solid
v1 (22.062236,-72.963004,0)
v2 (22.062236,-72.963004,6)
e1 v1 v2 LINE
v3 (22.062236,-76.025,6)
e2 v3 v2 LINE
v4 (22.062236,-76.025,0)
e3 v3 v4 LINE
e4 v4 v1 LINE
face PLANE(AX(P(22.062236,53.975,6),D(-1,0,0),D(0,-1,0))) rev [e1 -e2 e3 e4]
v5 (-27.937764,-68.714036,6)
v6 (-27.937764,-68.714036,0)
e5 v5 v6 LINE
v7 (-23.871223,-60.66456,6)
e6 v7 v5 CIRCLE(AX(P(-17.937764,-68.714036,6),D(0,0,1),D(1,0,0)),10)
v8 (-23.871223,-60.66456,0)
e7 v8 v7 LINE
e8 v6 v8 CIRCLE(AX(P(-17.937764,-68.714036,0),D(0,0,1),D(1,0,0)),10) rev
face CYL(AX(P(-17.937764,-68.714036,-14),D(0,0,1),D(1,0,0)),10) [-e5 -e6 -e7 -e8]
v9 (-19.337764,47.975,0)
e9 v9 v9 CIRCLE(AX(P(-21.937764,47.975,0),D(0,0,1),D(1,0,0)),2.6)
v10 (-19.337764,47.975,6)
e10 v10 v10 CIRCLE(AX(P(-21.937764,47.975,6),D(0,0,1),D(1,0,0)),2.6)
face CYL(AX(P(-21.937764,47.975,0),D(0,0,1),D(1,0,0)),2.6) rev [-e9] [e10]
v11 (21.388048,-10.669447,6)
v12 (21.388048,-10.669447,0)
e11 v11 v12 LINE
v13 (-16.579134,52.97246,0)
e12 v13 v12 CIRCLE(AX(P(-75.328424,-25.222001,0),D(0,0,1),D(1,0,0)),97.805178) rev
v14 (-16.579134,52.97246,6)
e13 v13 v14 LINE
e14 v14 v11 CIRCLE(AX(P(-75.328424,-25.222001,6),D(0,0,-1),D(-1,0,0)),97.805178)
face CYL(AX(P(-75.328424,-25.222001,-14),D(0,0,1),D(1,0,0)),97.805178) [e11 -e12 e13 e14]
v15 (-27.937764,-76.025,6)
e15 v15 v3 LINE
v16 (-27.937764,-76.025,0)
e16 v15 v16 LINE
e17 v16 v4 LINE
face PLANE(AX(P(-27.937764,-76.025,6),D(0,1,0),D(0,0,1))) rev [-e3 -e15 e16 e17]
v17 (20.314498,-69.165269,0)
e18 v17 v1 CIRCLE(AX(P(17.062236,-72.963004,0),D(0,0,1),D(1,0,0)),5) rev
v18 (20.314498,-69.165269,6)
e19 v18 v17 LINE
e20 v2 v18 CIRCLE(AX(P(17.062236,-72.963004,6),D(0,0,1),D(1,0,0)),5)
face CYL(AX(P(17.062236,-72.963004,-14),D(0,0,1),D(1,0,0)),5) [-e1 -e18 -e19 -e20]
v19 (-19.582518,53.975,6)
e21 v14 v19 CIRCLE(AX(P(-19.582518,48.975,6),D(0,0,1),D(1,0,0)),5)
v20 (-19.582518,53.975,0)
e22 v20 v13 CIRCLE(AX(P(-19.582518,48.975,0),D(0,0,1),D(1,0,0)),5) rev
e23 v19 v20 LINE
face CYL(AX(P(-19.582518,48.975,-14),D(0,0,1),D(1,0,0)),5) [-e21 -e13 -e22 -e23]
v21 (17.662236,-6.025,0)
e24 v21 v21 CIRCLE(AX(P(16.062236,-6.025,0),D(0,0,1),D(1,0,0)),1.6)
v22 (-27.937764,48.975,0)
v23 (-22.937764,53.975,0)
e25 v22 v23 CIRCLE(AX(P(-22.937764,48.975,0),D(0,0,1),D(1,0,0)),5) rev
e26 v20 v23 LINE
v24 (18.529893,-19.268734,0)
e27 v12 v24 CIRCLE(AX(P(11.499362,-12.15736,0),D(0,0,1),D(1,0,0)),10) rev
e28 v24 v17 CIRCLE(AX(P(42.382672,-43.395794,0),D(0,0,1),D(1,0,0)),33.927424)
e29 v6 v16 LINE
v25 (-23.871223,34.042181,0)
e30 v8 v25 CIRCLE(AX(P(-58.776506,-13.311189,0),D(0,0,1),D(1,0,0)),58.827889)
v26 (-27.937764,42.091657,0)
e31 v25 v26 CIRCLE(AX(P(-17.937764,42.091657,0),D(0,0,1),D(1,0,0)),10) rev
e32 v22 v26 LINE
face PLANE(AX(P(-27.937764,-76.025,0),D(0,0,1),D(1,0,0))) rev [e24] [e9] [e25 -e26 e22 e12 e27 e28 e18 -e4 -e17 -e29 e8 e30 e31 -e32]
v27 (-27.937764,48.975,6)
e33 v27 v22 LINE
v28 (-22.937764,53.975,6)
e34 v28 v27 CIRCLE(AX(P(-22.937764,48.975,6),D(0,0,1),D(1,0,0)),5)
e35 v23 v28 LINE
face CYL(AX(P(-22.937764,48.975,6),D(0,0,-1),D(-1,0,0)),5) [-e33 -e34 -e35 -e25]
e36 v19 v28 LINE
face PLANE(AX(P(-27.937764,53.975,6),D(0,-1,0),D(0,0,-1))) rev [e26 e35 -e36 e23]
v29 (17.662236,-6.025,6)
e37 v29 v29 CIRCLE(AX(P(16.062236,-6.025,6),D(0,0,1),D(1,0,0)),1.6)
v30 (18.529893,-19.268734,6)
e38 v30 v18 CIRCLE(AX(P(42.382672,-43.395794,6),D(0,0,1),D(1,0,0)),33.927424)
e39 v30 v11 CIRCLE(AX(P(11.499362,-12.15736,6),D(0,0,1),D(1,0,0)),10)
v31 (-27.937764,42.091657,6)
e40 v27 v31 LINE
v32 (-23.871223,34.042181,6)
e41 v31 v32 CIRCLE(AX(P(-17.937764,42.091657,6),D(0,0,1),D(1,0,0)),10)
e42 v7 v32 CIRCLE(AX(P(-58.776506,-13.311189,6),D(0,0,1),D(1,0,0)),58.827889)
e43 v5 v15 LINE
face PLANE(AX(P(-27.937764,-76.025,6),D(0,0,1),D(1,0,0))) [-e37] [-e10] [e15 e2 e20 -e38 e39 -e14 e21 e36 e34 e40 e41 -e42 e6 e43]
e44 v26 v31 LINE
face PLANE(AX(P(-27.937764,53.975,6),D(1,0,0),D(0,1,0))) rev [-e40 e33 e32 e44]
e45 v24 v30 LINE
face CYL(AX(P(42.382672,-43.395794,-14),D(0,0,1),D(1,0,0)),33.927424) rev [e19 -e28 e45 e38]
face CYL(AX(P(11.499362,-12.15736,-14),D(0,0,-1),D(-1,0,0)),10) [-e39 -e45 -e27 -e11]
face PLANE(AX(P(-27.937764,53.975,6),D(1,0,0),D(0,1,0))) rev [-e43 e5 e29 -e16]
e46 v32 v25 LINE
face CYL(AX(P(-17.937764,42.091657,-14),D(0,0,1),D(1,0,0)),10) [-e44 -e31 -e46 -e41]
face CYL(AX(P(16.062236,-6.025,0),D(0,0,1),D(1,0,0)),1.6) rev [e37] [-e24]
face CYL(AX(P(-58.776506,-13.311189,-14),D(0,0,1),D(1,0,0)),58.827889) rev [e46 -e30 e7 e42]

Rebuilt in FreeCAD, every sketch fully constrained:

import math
import FreeCAD as App
import Part
import Sketcher
Q = App.Units.Quantity


def edges_at(feature, points):
    """Names of the edges that pass closest to the given points."""
    edges = feature.Shape.Edges
    near = lambda p: min(range(len(edges)), key=lambda i: edges[i].distToShape(Part.Vertex(*p))[0])
    return sorted({f"Edge{near(p) + 1}" for p in points})

doc = App.newDocument("Part")
body = doc.addObject("PartDesign::Body", "Body")

sketch1 = doc.addObject("Sketcher::SketchObject", "Sketch")
body.addObject(sketch1)
sketch1.AttachmentSupport = (doc.XY_Plane, [""])
sketch1.MapMode = "FlatFace"
sketch1.addGeometry([
    Part.LineSegment(App.Vector(-28, 54, 0), App.Vector(-28, -76, 0)),
    Part.LineSegment(App.Vector(-28, -76, 0), App.Vector(22, -76, 0)),
    Part.LineSegment(App.Vector(22, -76, 0), App.Vector(22, 54, 0)),
    Part.LineSegment(App.Vector(22, 54, 0), App.Vector(-28, 54, 0)),
], False)
sketch1.addConstraint([
    Sketcher.Constraint("Coincident", 0, 2, 1, 1),
    Sketcher.Constraint("Coincident", 1, 2, 2, 1),
    Sketcher.Constraint("Coincident", 2, 2, 3, 1),
    Sketcher.Constraint("Coincident", 3, 2, 0, 1),
    Sketcher.Constraint("Vertical", 0),
    Sketcher.Constraint("Horizontal", 1),
    Sketcher.Constraint("Vertical", 2),
    Sketcher.Constraint("Horizontal", 3),
    Sketcher.Constraint("DistanceX", 1, 1, 1, 2, Q("50 mm")),
    Sketcher.Constraint("DistanceY", 0, 2, 0, 1, Q("130 mm")),
    Sketcher.Constraint("DistanceY", 0, 2, -1, 1, Q("76.025 mm")),
    Sketcher.Constraint("DistanceX", 0, 2, -1, 1, Q("27.937764 mm")),
])
pad1 = doc.addObject("PartDesign::Pad", "Pad")
body.addObject(pad1)
pad1.Profile = sketch1
pad1.Length = 6

sketch2 = doc.addObject("Sketcher::SketchObject", "Sketch001")
body.addObject(sketch2)
sketch2.AttachmentSupport = (doc.XY_Plane, [""])
sketch2.MapMode = "FlatFace"
sketch2.AttachmentOffset = App.Placement(App.Vector(0, 0, 6), App.Rotation())
sketch2.addGeometry([
    Part.Circle(App.Vector(-21.9, 48, 0), App.Vector(0, 0, 1), 2.6),
    Part.Circle(App.Vector(16.1, -6, 0), App.Vector(0, 0, 1), 1.6),
    Part.LineSegment(App.Vector(-7.9, 54, 0), App.Vector(22.1, 4, 0)),
    Part.LineSegment(App.Vector(22.1, 4, 0), App.Vector(22.1, 54, 0)),
    Part.LineSegment(App.Vector(22.1, 54, 0), App.Vector(-7.9, 54, 0)),
], False)
sketch2.addConstraint([
    Sketcher.Constraint("Coincident", 2, 2, 3, 1),
    Sketcher.Constraint("Coincident", 3, 2, 4, 1),
    Sketcher.Constraint("Coincident", 4, 2, 2, 1),
    Sketcher.Constraint("Vertical", 3),
    Sketcher.Constraint("Horizontal", 4),
    Sketcher.Constraint("Diameter", 0, Q("5.2 mm")),
    Sketcher.Constraint("Diameter", 1, Q("3.2 mm")),
    Sketcher.Constraint("DistanceX", 4, 2, 4, 1, Q("30 mm")),
    Sketcher.Constraint("DistanceY", 3, 1, 3, 2, Q("50 mm")),
    Sketcher.Constraint("DistanceX", 0, 3, 1, 3, Q("38 mm")),
    Sketcher.Constraint("DistanceY", 1, 3, 0, 3, Q("54 mm")),
    Sketcher.Constraint("DistanceX", 1, 3, 2, 2, Q("6 mm")),
    Sketcher.Constraint("DistanceY", 1, 3, 2, 2, Q("10 mm")),
    Sketcher.Constraint("DistanceY", -1, 1, 0, 3, Q("47.975 mm")),
    Sketcher.Constraint("DistanceX", 0, 3, -1, 1, Q("21.937764 mm")),
])
pocket1 = doc.addObject("PartDesign::Pocket", "Pocket")
body.addObject(pocket1)
pocket1.Profile = sketch2
pocket1.Length = 6

sketch3 = doc.addObject("Sketcher::SketchObject", "Sketch002")
body.addObject(sketch3)
sketch3.AttachmentSupport = (doc.XY_Plane, [""])
sketch3.MapMode = "FlatFace"
sketch3.AttachmentOffset = App.Placement(App.Vector(0, 0, 6), App.Rotation())
sketch3.addGeometry([
    Part.LineSegment(App.Vector(-28, 37, 0), App.Vector(-28, -63, 0)),
    Part.ArcOfCircle(Part.Circle(App.Vector(-59, -13, 0), App.Vector(0, 0, 1), 59), math.radians(-58), math.radians(58)),
    Part.LineSegment(App.Vector(9, 54, 0), App.Vector(-18, 54, 0)),
    Part.ArcOfCircle(Part.Circle(App.Vector(-75, -25, 0), App.Vector(0, 0, 1), 98), math.radians(5), math.radians(54)),
    Part.ArcOfCircle(Part.Circle(App.Vector(42, -43, 0), App.Vector(0, 0, 1), 34), math.radians(127), math.radians(233)),
    Part.LineSegment(App.Vector(22, -71, 0), App.Vector(35, 8, 0)),
    Part.LineSegment(App.Vector(35, 8, 0), App.Vector(9, 54, 0)),
], False)
sketch3.addConstraint([
    Sketcher.Constraint("Coincident", 0, 1, 1, 2),
    Sketcher.Constraint("Coincident", 1, 1, 0, 2),
    Sketcher.Constraint("Coincident", 2, 2, 3, 2),
    Sketcher.Constraint("Coincident", 3, 1, 4, 1),
    Sketcher.Constraint("Coincident", 4, 2, 5, 1),
    Sketcher.Constraint("Coincident", 5, 2, 6, 1),
    Sketcher.Constraint("Coincident", 6, 2, 2, 1),
    Sketcher.Constraint("Vertical", 0),
    Sketcher.Constraint("Horizontal", 2),
    Sketcher.Constraint("Vertical", 3, 1, 4, 2),
    Sketcher.Constraint("DistanceX", 0, 1, 2, 2, Q("10 mm")),
    Sketcher.Constraint("DistanceX", 1, 1, 3, 1, Q("50 mm")),
    Sketcher.Constraint("Radius", 1, Q("58.827889 mm")),
    Sketcher.Constraint("Radius", 3, Q("97.805178 mm")),
    Sketcher.Constraint("DistanceY", 3, 3, -1, 1, Q("25.222001 mm")),
    Sketcher.Constraint("DistanceY", -1, 1, 2, 2, Q("53.975 mm")),
    Sketcher.Constraint("Radius", 4, Q("33.927424 mm")),
    Sketcher.Constraint("DistanceX", 2, 2, 2, 1, Q("27.060348 mm")),
    Sketcher.Constraint("DistanceY", 0, 2, 0, 1, Q("100.193662 mm")),
    Sketcher.Constraint("DistanceY", 1, 3, -1, 1, Q("13.311189 mm")),
    Sketcher.Constraint("DistanceX", -1, 1, 4, 3, Q("42.382672 mm")),
    Sketcher.Constraint("DistanceY", 4, 2, -1, 1, Q("70.56471 mm")),
    Sketcher.Constraint("DistanceX", -1, 1, 5, 2, Q("35.098719 mm")),
    Sketcher.Constraint("DistanceY", 4, 3, 5, 2, Q("51.02455 mm")),
])
pocket2 = doc.addObject("PartDesign::Pocket", "Pocket001")
body.addObject(pocket2)
pocket2.Profile = sketch3
pocket2.Length = 20
doc.recompute()

fillet = doc.addObject("PartDesign::Fillet", "Fillet")
body.addObject(fillet)
fillet.Base = (pocket2, edges_at(pocket2, [(-27.938, 36.786, 3), (-27.938, -63.408, 3), (22.062, -16.227, 3)]))
fillet.Radius = 10
doc.recompute()

fillet2 = doc.addObject("PartDesign::Fillet", "Fillet001")
body.addObject(fillet2)
fillet2.Base = (fillet, edges_at(fillet, [(22.062, -70.565, 3), (-17.938, 53.975, 3), (-27.938, 53.975, 3)]))
fillet2.Radius = 5

doc.recompute()
